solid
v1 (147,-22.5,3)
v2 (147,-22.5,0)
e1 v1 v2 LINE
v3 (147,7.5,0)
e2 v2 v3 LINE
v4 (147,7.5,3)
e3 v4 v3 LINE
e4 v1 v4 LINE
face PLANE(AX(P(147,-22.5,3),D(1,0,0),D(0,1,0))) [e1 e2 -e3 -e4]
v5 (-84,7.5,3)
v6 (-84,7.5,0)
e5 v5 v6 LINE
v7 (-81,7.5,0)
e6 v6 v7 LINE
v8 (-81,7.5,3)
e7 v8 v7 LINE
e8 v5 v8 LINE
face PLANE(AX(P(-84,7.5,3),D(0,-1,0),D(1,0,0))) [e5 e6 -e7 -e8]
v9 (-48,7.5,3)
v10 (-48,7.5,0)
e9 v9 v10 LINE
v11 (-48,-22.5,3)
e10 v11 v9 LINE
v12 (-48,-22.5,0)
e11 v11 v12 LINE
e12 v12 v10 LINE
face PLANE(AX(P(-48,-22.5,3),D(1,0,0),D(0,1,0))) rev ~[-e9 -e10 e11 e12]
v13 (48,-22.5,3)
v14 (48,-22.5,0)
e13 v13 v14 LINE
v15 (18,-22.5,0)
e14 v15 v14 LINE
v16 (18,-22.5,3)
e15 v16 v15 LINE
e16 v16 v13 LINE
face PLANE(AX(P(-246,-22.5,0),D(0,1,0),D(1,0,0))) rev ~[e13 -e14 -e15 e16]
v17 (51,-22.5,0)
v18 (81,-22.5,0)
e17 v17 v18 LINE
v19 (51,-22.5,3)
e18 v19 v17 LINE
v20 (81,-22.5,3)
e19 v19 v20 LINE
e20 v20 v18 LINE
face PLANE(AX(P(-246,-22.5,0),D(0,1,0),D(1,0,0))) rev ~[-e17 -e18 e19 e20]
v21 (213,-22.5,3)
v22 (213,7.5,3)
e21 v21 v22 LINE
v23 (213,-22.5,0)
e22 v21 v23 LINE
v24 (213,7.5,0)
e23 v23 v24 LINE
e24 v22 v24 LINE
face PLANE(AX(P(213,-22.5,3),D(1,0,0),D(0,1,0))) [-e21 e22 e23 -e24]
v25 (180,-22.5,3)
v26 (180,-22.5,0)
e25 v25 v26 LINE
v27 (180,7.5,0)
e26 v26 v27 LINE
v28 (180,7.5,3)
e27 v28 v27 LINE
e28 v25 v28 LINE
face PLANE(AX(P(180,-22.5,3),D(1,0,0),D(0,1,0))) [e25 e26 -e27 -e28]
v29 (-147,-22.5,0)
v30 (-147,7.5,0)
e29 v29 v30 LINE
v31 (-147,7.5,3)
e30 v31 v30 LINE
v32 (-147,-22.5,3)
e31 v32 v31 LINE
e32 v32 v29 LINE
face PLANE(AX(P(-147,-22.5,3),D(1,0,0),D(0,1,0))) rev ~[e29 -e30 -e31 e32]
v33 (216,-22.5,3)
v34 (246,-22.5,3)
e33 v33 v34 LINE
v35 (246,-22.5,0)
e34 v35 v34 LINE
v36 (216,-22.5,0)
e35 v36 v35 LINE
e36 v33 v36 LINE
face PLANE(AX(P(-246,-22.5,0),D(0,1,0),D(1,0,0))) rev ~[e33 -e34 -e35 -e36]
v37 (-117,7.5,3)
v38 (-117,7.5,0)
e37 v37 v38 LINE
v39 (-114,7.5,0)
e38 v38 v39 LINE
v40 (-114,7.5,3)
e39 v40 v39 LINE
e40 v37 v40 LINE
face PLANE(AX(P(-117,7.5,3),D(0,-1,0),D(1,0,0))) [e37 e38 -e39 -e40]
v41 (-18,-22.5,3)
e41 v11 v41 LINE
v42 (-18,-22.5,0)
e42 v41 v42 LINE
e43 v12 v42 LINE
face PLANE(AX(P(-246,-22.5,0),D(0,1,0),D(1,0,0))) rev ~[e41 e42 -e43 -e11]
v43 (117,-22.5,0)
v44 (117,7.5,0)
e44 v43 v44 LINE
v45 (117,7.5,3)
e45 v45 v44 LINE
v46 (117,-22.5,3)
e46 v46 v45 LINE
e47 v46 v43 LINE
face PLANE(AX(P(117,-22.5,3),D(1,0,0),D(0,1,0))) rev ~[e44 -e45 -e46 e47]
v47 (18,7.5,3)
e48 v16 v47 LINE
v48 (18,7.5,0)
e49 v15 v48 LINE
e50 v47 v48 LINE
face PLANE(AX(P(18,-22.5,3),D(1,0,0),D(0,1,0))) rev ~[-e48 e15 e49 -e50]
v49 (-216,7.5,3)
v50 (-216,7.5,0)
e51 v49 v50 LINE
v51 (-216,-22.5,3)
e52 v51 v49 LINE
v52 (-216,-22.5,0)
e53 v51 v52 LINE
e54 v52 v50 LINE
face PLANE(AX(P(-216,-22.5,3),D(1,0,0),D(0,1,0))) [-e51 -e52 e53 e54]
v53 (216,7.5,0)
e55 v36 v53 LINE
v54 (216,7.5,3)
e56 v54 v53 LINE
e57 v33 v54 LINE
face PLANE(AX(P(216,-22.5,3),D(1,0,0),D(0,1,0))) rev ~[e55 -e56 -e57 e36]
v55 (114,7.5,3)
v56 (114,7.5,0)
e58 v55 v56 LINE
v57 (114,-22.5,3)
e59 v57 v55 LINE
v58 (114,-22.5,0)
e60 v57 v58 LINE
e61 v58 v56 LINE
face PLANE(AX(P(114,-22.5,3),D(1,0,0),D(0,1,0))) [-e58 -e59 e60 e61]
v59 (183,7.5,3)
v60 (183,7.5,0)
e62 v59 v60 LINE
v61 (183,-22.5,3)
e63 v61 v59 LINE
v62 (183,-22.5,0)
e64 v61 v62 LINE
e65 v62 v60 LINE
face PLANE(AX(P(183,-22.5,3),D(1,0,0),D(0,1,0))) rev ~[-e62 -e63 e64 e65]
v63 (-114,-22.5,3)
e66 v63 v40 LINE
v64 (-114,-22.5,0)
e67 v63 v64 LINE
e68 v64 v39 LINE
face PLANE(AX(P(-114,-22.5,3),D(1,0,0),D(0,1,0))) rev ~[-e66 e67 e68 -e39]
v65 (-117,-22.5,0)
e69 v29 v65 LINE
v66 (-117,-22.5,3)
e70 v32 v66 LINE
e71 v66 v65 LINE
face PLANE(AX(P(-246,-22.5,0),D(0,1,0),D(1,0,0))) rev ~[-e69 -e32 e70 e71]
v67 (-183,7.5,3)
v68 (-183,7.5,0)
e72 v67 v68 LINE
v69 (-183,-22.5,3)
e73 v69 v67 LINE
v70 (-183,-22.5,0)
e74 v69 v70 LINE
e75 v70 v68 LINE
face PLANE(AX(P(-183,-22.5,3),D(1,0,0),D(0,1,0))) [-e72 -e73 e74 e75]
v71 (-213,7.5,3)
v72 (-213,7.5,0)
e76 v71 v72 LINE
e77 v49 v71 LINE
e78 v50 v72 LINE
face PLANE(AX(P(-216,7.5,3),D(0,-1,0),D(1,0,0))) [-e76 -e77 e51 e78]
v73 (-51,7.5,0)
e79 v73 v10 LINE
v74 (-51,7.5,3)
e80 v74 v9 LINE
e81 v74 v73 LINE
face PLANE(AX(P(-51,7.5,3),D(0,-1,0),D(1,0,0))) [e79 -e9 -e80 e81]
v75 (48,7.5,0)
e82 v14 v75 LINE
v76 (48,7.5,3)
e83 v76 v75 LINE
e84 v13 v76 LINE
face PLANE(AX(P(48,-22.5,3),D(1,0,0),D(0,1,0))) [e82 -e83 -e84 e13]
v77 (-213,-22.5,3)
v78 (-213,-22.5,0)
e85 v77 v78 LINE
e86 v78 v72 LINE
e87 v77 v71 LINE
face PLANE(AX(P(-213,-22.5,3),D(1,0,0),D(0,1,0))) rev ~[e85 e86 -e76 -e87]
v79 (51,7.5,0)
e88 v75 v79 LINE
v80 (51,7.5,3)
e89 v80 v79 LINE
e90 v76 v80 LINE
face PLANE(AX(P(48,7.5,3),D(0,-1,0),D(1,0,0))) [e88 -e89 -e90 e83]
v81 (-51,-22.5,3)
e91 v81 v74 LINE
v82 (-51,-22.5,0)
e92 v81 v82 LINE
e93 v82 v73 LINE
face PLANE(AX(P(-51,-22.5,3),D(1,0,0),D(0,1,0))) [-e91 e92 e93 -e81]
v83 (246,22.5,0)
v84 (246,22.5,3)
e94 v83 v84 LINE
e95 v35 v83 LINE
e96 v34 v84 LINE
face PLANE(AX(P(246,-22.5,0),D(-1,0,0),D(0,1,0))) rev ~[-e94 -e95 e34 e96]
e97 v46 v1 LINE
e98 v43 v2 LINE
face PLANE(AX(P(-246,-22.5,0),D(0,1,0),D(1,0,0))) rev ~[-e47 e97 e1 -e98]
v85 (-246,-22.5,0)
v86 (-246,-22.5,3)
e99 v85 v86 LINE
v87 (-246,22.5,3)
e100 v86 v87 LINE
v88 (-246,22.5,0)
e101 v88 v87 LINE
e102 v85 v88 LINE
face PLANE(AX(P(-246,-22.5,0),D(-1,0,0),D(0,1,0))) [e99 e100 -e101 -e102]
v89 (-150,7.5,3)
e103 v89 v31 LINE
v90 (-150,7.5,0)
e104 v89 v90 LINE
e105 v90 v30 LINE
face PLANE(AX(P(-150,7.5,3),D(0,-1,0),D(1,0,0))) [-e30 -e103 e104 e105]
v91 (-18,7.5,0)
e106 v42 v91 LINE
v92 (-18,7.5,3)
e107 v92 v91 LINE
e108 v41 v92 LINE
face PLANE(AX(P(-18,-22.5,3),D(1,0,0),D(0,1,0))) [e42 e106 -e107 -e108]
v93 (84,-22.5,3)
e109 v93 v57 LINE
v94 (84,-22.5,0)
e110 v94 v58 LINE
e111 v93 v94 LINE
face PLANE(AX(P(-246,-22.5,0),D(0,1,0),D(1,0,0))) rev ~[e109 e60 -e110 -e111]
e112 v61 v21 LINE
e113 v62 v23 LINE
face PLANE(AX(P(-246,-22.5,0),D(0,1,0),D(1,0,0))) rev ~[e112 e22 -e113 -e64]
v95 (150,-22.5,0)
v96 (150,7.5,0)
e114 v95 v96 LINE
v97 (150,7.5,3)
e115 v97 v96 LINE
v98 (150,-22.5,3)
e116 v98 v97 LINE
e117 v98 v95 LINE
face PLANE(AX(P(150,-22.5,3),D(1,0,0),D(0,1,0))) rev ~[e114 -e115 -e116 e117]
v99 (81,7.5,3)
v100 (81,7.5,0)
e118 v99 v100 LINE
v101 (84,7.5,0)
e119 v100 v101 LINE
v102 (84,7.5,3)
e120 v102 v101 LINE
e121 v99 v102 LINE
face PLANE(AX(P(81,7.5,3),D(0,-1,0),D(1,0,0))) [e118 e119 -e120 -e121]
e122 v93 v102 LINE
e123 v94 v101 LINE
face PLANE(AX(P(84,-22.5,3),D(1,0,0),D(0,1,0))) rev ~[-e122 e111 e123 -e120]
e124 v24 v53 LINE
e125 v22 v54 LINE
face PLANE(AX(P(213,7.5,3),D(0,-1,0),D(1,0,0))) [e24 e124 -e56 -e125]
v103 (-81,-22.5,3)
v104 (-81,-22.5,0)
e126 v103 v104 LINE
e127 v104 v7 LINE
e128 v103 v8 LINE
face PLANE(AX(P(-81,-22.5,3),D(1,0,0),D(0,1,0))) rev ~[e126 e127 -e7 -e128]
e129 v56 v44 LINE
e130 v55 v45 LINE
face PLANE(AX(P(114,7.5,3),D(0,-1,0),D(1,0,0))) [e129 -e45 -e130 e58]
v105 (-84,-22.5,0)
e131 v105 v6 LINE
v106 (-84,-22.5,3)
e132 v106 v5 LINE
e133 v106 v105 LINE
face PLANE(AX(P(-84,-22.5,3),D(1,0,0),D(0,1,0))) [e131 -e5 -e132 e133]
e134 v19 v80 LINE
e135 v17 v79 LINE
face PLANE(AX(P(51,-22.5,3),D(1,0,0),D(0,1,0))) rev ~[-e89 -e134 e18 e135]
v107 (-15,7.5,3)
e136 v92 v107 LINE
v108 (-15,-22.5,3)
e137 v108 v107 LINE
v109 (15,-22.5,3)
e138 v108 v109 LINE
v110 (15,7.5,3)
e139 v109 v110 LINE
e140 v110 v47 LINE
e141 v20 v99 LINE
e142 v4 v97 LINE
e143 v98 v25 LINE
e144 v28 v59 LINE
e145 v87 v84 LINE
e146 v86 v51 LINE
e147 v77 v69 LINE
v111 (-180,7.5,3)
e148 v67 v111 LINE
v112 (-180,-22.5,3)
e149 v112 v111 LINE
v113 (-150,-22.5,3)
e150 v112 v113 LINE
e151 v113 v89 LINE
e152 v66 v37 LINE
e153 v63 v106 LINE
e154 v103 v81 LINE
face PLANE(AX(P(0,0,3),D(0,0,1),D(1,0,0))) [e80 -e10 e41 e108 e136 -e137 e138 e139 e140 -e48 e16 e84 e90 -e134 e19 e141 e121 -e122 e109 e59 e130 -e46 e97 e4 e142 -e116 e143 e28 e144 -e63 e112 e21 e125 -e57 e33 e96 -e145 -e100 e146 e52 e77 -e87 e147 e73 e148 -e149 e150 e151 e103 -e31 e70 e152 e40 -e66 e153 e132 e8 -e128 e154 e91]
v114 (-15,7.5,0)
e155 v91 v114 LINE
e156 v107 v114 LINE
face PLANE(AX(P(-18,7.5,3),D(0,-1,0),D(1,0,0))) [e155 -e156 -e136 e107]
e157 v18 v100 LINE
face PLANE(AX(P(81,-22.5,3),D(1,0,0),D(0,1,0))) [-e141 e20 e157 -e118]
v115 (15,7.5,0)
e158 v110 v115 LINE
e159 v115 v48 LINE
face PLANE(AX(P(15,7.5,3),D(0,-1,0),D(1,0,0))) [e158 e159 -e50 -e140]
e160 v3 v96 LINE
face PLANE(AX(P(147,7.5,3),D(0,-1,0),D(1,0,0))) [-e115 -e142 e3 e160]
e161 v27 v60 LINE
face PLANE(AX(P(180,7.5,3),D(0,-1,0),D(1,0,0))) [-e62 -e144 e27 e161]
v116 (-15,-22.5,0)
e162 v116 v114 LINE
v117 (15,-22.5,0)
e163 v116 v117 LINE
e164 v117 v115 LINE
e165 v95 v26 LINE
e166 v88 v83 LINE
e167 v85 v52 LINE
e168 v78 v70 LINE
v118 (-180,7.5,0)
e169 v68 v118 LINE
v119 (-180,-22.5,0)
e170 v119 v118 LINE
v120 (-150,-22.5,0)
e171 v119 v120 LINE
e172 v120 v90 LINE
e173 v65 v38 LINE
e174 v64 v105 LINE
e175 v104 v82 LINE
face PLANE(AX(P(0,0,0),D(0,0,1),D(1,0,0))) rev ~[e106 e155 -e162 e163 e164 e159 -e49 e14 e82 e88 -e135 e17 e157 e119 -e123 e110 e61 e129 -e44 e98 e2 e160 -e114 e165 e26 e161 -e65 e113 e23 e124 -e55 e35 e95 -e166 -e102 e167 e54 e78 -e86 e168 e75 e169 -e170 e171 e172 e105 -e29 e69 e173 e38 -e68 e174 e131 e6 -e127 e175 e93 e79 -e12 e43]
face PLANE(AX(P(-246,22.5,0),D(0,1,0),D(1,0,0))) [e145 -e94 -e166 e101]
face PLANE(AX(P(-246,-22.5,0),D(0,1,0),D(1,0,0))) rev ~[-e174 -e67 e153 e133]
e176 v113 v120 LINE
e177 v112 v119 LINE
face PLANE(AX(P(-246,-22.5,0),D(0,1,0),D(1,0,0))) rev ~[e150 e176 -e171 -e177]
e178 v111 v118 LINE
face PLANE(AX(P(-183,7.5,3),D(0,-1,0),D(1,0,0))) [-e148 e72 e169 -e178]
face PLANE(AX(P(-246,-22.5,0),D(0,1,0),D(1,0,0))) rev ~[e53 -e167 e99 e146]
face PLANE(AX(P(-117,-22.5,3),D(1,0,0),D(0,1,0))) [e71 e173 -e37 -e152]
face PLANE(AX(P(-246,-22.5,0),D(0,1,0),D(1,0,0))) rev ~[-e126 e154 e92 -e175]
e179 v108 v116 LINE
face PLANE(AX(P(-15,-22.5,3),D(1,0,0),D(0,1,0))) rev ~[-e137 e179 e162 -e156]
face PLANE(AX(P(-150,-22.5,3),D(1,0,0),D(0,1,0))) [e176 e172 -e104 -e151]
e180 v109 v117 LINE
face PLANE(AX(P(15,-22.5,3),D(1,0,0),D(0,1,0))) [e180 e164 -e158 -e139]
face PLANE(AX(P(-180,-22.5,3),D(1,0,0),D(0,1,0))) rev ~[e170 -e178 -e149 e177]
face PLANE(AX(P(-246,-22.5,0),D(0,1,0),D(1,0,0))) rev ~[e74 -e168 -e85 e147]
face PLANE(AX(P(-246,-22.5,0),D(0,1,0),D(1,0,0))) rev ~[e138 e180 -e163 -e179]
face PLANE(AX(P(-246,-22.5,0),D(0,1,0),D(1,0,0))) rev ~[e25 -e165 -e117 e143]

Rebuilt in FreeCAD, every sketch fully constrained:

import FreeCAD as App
import Part
import Sketcher

V = App.Vector
Q = App.Units.Quantity


def add_polygon(sketch, points):
    """Adds a closed chain of lines whose ends are joined by coincident constraints."""
    first, n = sketch.GeometryCount, len(points)
    for a, b in zip(points, points[1:] + points[:1]):
        sketch.addGeometry(Part.LineSegment(App.Vector(*a, 0), App.Vector(*b, 0)), False)
    for i in range(n):
        sketch.addConstraint(Sketcher.Constraint("Coincident", first + i, 2, first + (i + 1) % n, 1))

doc = App.newDocument("Part")
params = doc.addObject("Spreadsheet::Sheet", "Params")
for row, (alias, value) in enumerate([
    ("sketch1_width", "492 mm"),
    ("sketch1_height", "45 mm"),
    ("pad1_length", "3 mm"),
    ("sketch2_width", "3 mm"),
    ("sketch2_height", "30 mm"),
    ("linearpattern_pitch", "33 mm"),
], start=1):
    params.set(f"A{row}", alias)
    params.set(f"B{row}", "=" + value)
    params.setAlias(f"B{row}", alias)

body = doc.addObject("PartDesign::Body", "Body")

sketch1 = body.newObject("Sketcher::SketchObject", "Sketch")
sketch1.AttachmentSupport = (doc.getObject("XY_Plane"), [""])
sketch1.MapMode = "FlatFace"
add_polygon(sketch1, [(-246, 22), (-246, -22), (246, -22), (246, 22)])
sketch1.addConstraint(Sketcher.Constraint("Vertical", 0))
sketch1.addConstraint(Sketcher.Constraint("Horizontal", 1))
sketch1.addConstraint(Sketcher.Constraint("Vertical", 2))
sketch1.addConstraint(Sketcher.Constraint("Horizontal", 3))
sketch1.addConstraint(Sketcher.Constraint("Symmetric", 0, 2, 2, 2, -1, 1))
sketch1.addConstraint(Sketcher.Constraint("DistanceX", 1, 1, 1, 2, Q("492 mm")))
sketch1.addConstraint(Sketcher.Constraint("DistanceY", 0, 2, 0, 1, Q("45 mm")))
sketch1.setExpression("Constraints[9]", "Params.sketch1_width")
sketch1.setExpression("Constraints[10]", "Params.sketch1_height")
pad1 = body.newObject("PartDesign::Pad", "Pad")
pad1.Profile = sketch1
pad1.setExpression("Length", "Params.pad1_length")

sketch2 = body.newObject("Sketcher::SketchObject", "Sketch001")
sketch2.AttachmentSupport = (doc.getObject("XY_Plane"), [""])
sketch2.MapMode = "FlatFace"
sketch2.AttachmentOffset = App.Placement(V(0, 0, 3), App.Rotation())
add_polygon(sketch2, [(-216, 7.5), (-216, -22.5), (-213, -22.5), (-213, 7.5)])
sketch2.addConstraint(Sketcher.Constraint("Vertical", 0))
sketch2.addConstraint(Sketcher.Constraint("Horizontal", 1))
sketch2.addConstraint(Sketcher.Constraint("Vertical", 2))
sketch2.addConstraint(Sketcher.Constraint("Horizontal", 3))
sketch2.addConstraint(Sketcher.Constraint("DistanceX", 1, 1, 1, 2, Q("3 mm")))
sketch2.addConstraint(Sketcher.Constraint("DistanceY", 0, 2, 0, 1, Q("30 mm")))
sketch2.addConstraint(Sketcher.Constraint("DistanceX", 0, 2, -1, 1, Q("216 mm")))
sketch2.addConstraint(Sketcher.Constraint("DistanceY", 0, 2, -1, 1, Q("22.5 mm")))
sketch2.setExpression("Constraints[8]", "Params.sketch2_width")
sketch2.setExpression("Constraints[9]", "Params.sketch2_height")
pocket1 = body.newObject("PartDesign::Pocket", "Pocket")
pocket1.Profile = sketch2
pocket1.Type = "ThroughAll"
doc.recompute()

linearpattern = body.newObject("PartDesign::LinearPattern", "LinearPattern")
linearpattern.Originals = [pocket1]
linearpattern.Direction = (doc.getObject("X_Axis"), [""])
linearpattern.Mode = "offset"
linearpattern.setExpression("Offset", "Params.linearpattern_pitch")
linearpattern.Occurrences = 14
body.Tip = linearpattern

doc.recompute()
